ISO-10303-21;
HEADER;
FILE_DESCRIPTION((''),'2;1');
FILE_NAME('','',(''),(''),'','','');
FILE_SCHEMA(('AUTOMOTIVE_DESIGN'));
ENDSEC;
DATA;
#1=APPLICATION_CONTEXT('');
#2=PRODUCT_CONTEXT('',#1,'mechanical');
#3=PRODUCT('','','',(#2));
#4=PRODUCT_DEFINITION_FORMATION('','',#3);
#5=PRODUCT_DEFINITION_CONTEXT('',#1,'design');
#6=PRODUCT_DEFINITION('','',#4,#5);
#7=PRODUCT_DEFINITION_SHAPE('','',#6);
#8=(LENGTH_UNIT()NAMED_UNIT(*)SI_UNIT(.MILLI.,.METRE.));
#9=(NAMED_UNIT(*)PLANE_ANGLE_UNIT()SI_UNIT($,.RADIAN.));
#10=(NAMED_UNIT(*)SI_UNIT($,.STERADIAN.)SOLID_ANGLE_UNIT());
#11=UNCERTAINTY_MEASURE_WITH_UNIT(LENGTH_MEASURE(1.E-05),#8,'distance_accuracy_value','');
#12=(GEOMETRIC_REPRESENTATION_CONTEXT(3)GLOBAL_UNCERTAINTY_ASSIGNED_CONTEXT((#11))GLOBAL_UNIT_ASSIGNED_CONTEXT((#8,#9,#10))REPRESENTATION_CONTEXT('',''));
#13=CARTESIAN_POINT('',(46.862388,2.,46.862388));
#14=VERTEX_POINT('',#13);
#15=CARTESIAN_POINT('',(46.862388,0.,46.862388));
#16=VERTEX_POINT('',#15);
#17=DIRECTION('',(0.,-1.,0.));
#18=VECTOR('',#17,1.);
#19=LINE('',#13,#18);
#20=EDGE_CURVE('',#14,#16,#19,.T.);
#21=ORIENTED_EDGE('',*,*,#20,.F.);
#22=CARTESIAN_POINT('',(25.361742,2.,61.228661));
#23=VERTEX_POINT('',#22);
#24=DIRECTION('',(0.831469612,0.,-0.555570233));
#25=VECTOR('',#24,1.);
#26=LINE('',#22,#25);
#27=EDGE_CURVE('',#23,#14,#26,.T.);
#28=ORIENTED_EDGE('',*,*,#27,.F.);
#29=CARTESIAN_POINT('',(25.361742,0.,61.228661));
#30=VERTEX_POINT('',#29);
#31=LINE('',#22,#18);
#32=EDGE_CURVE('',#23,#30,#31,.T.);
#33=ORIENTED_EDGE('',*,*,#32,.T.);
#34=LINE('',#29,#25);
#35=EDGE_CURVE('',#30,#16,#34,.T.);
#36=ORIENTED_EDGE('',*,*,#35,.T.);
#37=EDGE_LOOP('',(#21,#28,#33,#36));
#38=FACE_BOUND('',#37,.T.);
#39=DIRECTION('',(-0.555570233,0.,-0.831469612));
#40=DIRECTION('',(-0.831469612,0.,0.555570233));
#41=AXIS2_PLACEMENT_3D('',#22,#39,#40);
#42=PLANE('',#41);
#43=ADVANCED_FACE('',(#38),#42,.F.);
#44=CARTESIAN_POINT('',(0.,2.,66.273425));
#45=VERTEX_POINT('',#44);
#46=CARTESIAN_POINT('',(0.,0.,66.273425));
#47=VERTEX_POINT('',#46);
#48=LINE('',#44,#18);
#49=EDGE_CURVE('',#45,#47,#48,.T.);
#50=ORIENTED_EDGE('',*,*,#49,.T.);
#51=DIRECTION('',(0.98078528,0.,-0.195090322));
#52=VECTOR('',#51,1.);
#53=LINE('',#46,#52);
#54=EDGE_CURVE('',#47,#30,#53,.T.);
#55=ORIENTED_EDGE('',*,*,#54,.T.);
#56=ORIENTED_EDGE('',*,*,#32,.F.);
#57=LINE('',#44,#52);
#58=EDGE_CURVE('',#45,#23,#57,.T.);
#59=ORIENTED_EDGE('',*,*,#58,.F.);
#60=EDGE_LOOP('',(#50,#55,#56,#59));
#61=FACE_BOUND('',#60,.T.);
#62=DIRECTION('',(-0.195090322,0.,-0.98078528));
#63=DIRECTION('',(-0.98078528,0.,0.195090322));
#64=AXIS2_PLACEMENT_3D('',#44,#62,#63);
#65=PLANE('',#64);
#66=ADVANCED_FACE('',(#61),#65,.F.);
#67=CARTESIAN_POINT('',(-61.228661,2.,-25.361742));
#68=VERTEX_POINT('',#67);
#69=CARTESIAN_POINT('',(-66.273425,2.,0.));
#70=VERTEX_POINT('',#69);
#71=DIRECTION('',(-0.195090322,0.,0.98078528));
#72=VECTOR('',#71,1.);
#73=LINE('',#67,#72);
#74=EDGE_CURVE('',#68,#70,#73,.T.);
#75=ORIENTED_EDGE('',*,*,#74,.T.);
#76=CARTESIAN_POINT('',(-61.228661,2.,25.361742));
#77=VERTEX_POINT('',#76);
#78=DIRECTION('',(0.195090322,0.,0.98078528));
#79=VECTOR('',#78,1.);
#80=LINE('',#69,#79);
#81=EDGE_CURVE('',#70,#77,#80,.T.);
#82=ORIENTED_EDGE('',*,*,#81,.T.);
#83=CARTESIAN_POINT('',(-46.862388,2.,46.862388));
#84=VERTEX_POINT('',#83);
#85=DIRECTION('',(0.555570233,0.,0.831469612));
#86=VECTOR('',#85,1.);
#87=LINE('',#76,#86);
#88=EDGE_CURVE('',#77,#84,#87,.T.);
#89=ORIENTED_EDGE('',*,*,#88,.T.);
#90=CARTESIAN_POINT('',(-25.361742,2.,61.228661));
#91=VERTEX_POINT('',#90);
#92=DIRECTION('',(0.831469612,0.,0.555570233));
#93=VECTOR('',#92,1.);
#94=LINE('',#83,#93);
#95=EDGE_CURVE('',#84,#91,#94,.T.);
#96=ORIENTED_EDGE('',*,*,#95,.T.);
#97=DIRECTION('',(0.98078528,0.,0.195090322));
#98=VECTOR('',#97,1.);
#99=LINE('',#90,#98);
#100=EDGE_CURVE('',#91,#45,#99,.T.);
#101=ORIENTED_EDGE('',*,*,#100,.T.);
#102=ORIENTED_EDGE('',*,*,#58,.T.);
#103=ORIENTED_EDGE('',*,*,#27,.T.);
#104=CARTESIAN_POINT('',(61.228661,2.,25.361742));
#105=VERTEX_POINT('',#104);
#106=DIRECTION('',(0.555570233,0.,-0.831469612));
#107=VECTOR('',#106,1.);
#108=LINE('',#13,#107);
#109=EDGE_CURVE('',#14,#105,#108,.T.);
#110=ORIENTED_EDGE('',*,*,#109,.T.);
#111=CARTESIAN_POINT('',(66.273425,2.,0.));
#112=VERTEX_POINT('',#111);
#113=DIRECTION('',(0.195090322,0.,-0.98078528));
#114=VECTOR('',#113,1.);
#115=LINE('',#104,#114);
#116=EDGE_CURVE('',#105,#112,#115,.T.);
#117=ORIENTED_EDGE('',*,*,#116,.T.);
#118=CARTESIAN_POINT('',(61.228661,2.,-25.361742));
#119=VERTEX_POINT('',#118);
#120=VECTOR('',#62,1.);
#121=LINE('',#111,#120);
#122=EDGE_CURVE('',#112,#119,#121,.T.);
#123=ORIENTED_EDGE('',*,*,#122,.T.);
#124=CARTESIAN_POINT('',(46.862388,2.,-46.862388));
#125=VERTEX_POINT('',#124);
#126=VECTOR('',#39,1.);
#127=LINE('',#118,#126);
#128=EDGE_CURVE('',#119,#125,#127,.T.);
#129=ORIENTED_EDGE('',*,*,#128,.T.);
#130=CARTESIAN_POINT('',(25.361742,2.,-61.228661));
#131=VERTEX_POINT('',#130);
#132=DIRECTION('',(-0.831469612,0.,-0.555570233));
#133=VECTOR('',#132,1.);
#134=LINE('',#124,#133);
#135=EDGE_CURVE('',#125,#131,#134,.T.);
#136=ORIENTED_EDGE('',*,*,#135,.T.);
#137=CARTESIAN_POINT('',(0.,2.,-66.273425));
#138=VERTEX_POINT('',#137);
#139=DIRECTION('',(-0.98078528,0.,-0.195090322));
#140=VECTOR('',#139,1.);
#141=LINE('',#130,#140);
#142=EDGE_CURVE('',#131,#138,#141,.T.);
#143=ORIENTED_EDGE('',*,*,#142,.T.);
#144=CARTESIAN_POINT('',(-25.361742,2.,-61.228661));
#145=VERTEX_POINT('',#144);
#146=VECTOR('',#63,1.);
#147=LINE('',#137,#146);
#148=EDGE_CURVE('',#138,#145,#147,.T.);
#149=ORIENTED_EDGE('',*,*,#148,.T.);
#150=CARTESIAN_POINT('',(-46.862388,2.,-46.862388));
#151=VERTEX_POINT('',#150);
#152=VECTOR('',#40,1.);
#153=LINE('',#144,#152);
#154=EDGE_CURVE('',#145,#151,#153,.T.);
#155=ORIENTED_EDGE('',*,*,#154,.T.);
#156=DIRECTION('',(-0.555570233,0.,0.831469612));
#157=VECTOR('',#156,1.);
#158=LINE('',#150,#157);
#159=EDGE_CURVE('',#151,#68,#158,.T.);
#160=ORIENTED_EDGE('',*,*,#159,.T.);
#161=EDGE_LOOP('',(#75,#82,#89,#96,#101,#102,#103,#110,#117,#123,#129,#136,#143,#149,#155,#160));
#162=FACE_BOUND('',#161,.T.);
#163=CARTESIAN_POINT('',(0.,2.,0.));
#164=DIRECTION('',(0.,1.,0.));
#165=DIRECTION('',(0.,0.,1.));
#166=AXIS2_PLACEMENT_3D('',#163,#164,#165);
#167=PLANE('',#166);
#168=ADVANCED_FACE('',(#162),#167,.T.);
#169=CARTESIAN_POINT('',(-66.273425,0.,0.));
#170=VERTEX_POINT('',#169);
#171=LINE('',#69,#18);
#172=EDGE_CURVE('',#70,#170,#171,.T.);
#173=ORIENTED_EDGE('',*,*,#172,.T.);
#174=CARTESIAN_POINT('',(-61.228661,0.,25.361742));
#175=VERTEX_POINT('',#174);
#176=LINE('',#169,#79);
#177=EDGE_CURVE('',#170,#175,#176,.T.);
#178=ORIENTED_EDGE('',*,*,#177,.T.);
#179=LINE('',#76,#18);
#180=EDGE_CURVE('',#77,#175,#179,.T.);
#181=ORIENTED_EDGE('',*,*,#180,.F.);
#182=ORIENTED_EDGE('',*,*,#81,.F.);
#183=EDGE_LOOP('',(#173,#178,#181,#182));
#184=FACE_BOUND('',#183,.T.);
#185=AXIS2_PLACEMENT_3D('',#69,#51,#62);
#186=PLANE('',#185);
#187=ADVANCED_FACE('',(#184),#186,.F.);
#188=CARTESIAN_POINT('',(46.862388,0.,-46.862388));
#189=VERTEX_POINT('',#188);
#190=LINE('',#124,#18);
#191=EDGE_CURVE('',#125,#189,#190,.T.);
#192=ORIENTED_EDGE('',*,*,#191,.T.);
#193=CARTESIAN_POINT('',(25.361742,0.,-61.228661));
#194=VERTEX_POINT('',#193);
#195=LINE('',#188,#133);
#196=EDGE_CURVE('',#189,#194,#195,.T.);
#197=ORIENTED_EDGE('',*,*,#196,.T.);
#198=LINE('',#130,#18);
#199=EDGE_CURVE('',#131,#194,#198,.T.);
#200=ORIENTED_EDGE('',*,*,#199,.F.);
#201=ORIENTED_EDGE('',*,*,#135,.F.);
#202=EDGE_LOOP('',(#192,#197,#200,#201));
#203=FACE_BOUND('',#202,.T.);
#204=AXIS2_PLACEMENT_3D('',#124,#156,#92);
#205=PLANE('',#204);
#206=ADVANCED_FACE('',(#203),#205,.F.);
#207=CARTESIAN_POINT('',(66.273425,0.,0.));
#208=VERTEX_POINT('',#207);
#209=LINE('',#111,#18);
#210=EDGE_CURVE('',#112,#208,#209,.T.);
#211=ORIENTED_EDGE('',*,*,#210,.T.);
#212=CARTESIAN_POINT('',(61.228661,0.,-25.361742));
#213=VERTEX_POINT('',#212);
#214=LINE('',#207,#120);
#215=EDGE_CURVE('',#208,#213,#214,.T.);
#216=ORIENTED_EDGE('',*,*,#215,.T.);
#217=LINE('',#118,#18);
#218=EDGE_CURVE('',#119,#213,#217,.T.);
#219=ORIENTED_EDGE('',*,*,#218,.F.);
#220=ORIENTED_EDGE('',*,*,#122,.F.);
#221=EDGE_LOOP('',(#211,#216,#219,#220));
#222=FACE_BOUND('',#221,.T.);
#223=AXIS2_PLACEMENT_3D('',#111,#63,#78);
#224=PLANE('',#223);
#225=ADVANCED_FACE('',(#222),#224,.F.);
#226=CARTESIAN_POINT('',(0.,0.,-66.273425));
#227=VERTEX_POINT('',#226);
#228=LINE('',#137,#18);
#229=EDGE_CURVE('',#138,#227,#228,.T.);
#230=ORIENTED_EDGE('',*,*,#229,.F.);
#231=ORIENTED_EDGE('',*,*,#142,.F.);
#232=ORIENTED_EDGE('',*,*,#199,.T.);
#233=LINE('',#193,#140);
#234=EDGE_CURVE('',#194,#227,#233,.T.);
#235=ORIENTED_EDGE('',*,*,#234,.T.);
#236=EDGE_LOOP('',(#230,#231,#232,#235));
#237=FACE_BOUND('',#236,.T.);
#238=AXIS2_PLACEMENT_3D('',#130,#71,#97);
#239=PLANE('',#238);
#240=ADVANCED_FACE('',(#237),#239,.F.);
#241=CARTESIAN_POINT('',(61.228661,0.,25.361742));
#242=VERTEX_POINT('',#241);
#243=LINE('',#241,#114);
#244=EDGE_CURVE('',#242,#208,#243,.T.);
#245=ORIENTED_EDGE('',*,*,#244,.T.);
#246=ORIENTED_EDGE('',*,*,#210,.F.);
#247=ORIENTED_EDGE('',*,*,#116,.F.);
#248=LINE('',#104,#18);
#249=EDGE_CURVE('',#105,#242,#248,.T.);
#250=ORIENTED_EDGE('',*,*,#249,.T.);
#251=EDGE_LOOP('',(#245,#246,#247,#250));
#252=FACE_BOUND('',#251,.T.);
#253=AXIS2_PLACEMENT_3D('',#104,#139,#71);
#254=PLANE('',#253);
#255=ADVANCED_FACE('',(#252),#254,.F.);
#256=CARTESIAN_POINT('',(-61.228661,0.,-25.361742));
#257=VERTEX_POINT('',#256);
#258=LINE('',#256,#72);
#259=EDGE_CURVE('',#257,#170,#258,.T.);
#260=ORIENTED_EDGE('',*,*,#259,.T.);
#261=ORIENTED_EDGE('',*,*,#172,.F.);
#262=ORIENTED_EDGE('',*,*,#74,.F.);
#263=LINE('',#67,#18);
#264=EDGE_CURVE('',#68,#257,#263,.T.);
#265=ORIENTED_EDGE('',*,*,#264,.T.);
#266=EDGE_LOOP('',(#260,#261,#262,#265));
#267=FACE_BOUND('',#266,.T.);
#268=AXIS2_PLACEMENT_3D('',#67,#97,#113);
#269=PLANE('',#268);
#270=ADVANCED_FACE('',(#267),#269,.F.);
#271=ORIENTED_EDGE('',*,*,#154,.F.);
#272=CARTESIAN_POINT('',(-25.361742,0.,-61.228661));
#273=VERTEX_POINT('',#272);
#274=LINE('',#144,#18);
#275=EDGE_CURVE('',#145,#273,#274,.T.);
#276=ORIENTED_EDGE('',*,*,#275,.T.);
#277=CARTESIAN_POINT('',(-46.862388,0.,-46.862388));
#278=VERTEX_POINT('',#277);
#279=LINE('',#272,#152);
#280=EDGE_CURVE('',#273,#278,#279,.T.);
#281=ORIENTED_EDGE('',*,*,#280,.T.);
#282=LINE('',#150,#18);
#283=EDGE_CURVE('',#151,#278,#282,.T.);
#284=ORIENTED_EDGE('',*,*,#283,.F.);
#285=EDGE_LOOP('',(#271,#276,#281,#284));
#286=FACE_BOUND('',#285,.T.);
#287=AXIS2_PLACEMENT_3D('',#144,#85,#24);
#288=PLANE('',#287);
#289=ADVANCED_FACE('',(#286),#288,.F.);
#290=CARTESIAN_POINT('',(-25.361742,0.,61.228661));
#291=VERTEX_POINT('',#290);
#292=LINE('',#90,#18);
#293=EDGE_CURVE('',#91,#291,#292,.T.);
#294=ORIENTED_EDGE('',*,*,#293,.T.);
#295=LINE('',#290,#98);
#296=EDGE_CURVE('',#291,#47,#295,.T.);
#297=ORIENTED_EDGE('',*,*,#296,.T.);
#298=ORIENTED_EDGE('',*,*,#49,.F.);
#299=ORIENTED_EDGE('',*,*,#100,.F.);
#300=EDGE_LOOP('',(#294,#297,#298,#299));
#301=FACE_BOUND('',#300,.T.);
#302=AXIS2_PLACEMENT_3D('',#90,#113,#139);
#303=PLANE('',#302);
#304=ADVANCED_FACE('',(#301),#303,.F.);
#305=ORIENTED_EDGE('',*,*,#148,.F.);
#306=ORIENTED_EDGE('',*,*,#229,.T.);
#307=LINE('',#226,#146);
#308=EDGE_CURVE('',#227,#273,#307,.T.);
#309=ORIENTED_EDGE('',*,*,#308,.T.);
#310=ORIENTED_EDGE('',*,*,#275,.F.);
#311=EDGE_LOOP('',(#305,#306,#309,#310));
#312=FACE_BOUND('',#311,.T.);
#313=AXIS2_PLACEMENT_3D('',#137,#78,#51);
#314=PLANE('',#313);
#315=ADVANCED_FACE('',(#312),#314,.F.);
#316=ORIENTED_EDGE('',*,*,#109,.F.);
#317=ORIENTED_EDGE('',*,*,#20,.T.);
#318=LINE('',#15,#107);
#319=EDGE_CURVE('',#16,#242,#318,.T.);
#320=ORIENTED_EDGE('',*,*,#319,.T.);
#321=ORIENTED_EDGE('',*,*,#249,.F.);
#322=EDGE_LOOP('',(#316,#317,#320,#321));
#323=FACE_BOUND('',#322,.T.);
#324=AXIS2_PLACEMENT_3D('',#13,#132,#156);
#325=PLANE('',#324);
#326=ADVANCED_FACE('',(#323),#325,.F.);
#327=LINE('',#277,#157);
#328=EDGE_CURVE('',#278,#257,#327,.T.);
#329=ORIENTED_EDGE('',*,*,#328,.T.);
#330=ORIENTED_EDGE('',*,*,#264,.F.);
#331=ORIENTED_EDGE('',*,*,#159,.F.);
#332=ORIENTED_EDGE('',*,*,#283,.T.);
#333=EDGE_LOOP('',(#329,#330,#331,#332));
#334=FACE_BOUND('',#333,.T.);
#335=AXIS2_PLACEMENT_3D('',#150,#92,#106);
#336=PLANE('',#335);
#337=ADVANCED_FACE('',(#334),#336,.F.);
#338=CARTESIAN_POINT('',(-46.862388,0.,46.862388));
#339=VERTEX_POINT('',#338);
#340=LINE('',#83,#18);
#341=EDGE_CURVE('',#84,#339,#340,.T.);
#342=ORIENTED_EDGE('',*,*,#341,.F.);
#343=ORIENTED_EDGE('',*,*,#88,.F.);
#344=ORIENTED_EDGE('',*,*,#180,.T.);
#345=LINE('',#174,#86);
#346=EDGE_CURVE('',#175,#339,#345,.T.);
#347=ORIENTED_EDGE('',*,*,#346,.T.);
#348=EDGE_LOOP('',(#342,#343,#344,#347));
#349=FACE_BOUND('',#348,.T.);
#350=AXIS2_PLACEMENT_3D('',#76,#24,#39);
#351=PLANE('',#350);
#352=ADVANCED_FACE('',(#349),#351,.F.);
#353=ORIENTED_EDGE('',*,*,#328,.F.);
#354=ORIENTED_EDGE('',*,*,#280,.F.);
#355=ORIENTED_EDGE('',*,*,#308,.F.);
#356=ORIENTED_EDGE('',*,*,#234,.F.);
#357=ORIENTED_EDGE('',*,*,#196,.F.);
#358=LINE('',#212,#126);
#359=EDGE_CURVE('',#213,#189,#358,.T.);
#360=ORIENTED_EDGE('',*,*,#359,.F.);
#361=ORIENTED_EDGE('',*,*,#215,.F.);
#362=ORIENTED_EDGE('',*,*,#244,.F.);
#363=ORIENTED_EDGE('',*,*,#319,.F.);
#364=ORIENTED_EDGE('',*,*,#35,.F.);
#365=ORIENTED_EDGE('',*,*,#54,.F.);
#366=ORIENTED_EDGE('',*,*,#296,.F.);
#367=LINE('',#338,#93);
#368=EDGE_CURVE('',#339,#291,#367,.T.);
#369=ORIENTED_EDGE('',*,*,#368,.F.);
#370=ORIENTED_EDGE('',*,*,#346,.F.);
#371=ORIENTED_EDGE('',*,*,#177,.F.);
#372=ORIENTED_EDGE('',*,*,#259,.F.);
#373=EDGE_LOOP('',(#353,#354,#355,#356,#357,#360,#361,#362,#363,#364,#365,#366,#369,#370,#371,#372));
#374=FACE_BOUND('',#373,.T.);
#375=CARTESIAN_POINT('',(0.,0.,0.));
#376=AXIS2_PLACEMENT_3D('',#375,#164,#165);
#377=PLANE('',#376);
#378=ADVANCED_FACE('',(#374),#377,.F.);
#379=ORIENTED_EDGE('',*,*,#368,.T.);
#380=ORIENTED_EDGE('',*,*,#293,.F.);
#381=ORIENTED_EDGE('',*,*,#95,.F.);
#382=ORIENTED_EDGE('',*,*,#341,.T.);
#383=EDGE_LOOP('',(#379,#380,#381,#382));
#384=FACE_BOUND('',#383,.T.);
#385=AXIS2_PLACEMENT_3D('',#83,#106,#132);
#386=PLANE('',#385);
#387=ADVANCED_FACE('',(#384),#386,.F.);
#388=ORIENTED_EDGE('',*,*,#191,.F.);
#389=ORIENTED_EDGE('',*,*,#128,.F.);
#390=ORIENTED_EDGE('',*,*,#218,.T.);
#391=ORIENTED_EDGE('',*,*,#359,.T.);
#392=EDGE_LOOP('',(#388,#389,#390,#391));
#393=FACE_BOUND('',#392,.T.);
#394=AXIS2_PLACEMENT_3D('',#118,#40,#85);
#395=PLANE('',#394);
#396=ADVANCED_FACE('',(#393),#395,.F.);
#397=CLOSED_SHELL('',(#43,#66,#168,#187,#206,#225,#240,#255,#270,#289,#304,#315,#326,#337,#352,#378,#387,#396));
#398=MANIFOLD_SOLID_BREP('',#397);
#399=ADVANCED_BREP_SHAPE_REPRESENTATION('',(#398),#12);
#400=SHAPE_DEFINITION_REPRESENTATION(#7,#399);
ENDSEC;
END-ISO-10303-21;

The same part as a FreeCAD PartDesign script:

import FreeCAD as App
import Part
import Sketcher
Q = App.Units.Quantity

doc = App.newDocument("Part")
body = doc.addObject("PartDesign::Body", "Body")

# Sketch on XZ plane
sketch1 = body.newObject("Sketcher::SketchObject", "Sketch")
sketch1.AttachmentSupport = (doc.getObject("XZ_Plane"), [""])
sketch1.MapMode = "FlatFace"
sketch1.addGeometry([
    Part.LineSegment(App.Vector(66, 0, 0), App.Vector(61, -25, 0)),  # 0
    Part.LineSegment(App.Vector(61, -25, 0), App.Vector(47, -47, 0)),  # 1
    Part.LineSegment(App.Vector(47, -47, 0), App.Vector(25, -61, 0)),  # 2
    Part.LineSegment(App.Vector(25, -61, 0), App.Vector(0, -66, 0)),  # 3
    Part.LineSegment(App.Vector(0, -66, 0), App.Vector(-25, -61, 0)),  # 4
    Part.LineSegment(App.Vector(-25, -61, 0), App.Vector(-47, -47, 0)),  # 5
    Part.LineSegment(App.Vector(-47, -47, 0), App.Vector(-61, -25, 0)),  # 6
    Part.LineSegment(App.Vector(-61, -25, 0), App.Vector(-66, 0, 0)),  # 7
    Part.LineSegment(App.Vector(-66, 0, 0), App.Vector(-61, 25, 0)),  # 8
    Part.LineSegment(App.Vector(-61, 25, 0), App.Vector(-47, 47, 0)),  # 9
    Part.LineSegment(App.Vector(-47, 47, 0), App.Vector(-25, 61, 0)),  # 10
    Part.LineSegment(App.Vector(-25, 61, 0), App.Vector(0, 66, 0)),  # 11
    Part.LineSegment(App.Vector(0, 66, 0), App.Vector(25, 61, 0)),  # 12
    Part.LineSegment(App.Vector(25, 61, 0), App.Vector(47, 47, 0)),  # 13
    Part.LineSegment(App.Vector(47, 47, 0), App.Vector(61, 25, 0)),  # 14
    Part.LineSegment(App.Vector(61, 25, 0), App.Vector(66, 0, 0)),  # 15
], False)
sketch1.addConstraint([
    Sketcher.Constraint("Coincident", 0, 2, 1, 1),
    Sketcher.Constraint("Coincident", 1, 2, 2, 1),
    Sketcher.Constraint("Coincident", 2, 2, 3, 1),
    Sketcher.Constraint("Coincident", 3, 2, 4, 1),
    Sketcher.Constraint("Coincident", 4, 2, 5, 1),
    Sketcher.Constraint("Coincident", 5, 2, 6, 1),
    Sketcher.Constraint("Coincident", 6, 2, 7, 1),
    Sketcher.Constraint("Coincident", 7, 2, 8, 1),
    Sketcher.Constraint("Coincident", 8, 2, 9, 1),
    Sketcher.Constraint("Coincident", 9, 2, 10, 1),
    Sketcher.Constraint("Coincident", 10, 2, 11, 1),
    Sketcher.Constraint("Coincident", 11, 2, 12, 1),
    Sketcher.Constraint("Coincident", 12, 2, 13, 1),
    Sketcher.Constraint("Coincident", 13, 2, 14, 1),
    Sketcher.Constraint("Coincident", 14, 2, 15, 1),
    Sketcher.Constraint("Coincident", 15, 2, 0, 1),
    Sketcher.Constraint("Symmetric", 0, 2, 8, 2, -1, 1),
    Sketcher.Constraint("Symmetric", 1, 2, 9, 2, -1, 1),
    Sketcher.Constraint("Symmetric", 2, 2, 10, 2, -1, 1),
    Sketcher.Constraint("Symmetric", 3, 2, 11, 2, -1, 1),
    Sketcher.Constraint("Symmetric", 4, 2, 12, 2, -1, 1),
    Sketcher.Constraint("Symmetric", 5, 2, 13, 2, -1, 1),
    Sketcher.Constraint("Symmetric", 6, 2, 14, 2, -1, 1),
    Sketcher.Constraint("Symmetric", 7, 2, 15, 2, -1, 1),
    Sketcher.Constraint("Symmetric", 2, 2, 4, 2, -2),
    Sketcher.Constraint("Symmetric", 1, 2, 5, 2, -2),
    Sketcher.Constraint("Symmetric", 0, 2, 6, 2, -2),
    Sketcher.Constraint("PointOnObject", 3, 2, -2),
    Sketcher.Constraint("PointOnObject", 7, 2, -1),
    Sketcher.Constraint("Perpendicular", 0, 4),
    Sketcher.Constraint("Perpendicular", 1, 5),
    Sketcher.Constraint("Equal", 0, 1),
    Sketcher.Constraint("Equal", 1, 2),
    Sketcher.Constraint("Equal", 2, 3),
    Sketcher.Constraint("Angle", 0, Q("-101.25 deg")),
    Sketcher.Constraint("Angle", 1, Q("-123.75 deg")),
    Sketcher.Constraint("DistanceX", -1, 1, 0, 2, Q("61.228661 mm")),
])
pad1 = body.newObject("PartDesign::Pad", "Pad")
pad1.Profile = sketch1
pad1.Length = 2
pad1.Reversed = True

doc.recompute()
